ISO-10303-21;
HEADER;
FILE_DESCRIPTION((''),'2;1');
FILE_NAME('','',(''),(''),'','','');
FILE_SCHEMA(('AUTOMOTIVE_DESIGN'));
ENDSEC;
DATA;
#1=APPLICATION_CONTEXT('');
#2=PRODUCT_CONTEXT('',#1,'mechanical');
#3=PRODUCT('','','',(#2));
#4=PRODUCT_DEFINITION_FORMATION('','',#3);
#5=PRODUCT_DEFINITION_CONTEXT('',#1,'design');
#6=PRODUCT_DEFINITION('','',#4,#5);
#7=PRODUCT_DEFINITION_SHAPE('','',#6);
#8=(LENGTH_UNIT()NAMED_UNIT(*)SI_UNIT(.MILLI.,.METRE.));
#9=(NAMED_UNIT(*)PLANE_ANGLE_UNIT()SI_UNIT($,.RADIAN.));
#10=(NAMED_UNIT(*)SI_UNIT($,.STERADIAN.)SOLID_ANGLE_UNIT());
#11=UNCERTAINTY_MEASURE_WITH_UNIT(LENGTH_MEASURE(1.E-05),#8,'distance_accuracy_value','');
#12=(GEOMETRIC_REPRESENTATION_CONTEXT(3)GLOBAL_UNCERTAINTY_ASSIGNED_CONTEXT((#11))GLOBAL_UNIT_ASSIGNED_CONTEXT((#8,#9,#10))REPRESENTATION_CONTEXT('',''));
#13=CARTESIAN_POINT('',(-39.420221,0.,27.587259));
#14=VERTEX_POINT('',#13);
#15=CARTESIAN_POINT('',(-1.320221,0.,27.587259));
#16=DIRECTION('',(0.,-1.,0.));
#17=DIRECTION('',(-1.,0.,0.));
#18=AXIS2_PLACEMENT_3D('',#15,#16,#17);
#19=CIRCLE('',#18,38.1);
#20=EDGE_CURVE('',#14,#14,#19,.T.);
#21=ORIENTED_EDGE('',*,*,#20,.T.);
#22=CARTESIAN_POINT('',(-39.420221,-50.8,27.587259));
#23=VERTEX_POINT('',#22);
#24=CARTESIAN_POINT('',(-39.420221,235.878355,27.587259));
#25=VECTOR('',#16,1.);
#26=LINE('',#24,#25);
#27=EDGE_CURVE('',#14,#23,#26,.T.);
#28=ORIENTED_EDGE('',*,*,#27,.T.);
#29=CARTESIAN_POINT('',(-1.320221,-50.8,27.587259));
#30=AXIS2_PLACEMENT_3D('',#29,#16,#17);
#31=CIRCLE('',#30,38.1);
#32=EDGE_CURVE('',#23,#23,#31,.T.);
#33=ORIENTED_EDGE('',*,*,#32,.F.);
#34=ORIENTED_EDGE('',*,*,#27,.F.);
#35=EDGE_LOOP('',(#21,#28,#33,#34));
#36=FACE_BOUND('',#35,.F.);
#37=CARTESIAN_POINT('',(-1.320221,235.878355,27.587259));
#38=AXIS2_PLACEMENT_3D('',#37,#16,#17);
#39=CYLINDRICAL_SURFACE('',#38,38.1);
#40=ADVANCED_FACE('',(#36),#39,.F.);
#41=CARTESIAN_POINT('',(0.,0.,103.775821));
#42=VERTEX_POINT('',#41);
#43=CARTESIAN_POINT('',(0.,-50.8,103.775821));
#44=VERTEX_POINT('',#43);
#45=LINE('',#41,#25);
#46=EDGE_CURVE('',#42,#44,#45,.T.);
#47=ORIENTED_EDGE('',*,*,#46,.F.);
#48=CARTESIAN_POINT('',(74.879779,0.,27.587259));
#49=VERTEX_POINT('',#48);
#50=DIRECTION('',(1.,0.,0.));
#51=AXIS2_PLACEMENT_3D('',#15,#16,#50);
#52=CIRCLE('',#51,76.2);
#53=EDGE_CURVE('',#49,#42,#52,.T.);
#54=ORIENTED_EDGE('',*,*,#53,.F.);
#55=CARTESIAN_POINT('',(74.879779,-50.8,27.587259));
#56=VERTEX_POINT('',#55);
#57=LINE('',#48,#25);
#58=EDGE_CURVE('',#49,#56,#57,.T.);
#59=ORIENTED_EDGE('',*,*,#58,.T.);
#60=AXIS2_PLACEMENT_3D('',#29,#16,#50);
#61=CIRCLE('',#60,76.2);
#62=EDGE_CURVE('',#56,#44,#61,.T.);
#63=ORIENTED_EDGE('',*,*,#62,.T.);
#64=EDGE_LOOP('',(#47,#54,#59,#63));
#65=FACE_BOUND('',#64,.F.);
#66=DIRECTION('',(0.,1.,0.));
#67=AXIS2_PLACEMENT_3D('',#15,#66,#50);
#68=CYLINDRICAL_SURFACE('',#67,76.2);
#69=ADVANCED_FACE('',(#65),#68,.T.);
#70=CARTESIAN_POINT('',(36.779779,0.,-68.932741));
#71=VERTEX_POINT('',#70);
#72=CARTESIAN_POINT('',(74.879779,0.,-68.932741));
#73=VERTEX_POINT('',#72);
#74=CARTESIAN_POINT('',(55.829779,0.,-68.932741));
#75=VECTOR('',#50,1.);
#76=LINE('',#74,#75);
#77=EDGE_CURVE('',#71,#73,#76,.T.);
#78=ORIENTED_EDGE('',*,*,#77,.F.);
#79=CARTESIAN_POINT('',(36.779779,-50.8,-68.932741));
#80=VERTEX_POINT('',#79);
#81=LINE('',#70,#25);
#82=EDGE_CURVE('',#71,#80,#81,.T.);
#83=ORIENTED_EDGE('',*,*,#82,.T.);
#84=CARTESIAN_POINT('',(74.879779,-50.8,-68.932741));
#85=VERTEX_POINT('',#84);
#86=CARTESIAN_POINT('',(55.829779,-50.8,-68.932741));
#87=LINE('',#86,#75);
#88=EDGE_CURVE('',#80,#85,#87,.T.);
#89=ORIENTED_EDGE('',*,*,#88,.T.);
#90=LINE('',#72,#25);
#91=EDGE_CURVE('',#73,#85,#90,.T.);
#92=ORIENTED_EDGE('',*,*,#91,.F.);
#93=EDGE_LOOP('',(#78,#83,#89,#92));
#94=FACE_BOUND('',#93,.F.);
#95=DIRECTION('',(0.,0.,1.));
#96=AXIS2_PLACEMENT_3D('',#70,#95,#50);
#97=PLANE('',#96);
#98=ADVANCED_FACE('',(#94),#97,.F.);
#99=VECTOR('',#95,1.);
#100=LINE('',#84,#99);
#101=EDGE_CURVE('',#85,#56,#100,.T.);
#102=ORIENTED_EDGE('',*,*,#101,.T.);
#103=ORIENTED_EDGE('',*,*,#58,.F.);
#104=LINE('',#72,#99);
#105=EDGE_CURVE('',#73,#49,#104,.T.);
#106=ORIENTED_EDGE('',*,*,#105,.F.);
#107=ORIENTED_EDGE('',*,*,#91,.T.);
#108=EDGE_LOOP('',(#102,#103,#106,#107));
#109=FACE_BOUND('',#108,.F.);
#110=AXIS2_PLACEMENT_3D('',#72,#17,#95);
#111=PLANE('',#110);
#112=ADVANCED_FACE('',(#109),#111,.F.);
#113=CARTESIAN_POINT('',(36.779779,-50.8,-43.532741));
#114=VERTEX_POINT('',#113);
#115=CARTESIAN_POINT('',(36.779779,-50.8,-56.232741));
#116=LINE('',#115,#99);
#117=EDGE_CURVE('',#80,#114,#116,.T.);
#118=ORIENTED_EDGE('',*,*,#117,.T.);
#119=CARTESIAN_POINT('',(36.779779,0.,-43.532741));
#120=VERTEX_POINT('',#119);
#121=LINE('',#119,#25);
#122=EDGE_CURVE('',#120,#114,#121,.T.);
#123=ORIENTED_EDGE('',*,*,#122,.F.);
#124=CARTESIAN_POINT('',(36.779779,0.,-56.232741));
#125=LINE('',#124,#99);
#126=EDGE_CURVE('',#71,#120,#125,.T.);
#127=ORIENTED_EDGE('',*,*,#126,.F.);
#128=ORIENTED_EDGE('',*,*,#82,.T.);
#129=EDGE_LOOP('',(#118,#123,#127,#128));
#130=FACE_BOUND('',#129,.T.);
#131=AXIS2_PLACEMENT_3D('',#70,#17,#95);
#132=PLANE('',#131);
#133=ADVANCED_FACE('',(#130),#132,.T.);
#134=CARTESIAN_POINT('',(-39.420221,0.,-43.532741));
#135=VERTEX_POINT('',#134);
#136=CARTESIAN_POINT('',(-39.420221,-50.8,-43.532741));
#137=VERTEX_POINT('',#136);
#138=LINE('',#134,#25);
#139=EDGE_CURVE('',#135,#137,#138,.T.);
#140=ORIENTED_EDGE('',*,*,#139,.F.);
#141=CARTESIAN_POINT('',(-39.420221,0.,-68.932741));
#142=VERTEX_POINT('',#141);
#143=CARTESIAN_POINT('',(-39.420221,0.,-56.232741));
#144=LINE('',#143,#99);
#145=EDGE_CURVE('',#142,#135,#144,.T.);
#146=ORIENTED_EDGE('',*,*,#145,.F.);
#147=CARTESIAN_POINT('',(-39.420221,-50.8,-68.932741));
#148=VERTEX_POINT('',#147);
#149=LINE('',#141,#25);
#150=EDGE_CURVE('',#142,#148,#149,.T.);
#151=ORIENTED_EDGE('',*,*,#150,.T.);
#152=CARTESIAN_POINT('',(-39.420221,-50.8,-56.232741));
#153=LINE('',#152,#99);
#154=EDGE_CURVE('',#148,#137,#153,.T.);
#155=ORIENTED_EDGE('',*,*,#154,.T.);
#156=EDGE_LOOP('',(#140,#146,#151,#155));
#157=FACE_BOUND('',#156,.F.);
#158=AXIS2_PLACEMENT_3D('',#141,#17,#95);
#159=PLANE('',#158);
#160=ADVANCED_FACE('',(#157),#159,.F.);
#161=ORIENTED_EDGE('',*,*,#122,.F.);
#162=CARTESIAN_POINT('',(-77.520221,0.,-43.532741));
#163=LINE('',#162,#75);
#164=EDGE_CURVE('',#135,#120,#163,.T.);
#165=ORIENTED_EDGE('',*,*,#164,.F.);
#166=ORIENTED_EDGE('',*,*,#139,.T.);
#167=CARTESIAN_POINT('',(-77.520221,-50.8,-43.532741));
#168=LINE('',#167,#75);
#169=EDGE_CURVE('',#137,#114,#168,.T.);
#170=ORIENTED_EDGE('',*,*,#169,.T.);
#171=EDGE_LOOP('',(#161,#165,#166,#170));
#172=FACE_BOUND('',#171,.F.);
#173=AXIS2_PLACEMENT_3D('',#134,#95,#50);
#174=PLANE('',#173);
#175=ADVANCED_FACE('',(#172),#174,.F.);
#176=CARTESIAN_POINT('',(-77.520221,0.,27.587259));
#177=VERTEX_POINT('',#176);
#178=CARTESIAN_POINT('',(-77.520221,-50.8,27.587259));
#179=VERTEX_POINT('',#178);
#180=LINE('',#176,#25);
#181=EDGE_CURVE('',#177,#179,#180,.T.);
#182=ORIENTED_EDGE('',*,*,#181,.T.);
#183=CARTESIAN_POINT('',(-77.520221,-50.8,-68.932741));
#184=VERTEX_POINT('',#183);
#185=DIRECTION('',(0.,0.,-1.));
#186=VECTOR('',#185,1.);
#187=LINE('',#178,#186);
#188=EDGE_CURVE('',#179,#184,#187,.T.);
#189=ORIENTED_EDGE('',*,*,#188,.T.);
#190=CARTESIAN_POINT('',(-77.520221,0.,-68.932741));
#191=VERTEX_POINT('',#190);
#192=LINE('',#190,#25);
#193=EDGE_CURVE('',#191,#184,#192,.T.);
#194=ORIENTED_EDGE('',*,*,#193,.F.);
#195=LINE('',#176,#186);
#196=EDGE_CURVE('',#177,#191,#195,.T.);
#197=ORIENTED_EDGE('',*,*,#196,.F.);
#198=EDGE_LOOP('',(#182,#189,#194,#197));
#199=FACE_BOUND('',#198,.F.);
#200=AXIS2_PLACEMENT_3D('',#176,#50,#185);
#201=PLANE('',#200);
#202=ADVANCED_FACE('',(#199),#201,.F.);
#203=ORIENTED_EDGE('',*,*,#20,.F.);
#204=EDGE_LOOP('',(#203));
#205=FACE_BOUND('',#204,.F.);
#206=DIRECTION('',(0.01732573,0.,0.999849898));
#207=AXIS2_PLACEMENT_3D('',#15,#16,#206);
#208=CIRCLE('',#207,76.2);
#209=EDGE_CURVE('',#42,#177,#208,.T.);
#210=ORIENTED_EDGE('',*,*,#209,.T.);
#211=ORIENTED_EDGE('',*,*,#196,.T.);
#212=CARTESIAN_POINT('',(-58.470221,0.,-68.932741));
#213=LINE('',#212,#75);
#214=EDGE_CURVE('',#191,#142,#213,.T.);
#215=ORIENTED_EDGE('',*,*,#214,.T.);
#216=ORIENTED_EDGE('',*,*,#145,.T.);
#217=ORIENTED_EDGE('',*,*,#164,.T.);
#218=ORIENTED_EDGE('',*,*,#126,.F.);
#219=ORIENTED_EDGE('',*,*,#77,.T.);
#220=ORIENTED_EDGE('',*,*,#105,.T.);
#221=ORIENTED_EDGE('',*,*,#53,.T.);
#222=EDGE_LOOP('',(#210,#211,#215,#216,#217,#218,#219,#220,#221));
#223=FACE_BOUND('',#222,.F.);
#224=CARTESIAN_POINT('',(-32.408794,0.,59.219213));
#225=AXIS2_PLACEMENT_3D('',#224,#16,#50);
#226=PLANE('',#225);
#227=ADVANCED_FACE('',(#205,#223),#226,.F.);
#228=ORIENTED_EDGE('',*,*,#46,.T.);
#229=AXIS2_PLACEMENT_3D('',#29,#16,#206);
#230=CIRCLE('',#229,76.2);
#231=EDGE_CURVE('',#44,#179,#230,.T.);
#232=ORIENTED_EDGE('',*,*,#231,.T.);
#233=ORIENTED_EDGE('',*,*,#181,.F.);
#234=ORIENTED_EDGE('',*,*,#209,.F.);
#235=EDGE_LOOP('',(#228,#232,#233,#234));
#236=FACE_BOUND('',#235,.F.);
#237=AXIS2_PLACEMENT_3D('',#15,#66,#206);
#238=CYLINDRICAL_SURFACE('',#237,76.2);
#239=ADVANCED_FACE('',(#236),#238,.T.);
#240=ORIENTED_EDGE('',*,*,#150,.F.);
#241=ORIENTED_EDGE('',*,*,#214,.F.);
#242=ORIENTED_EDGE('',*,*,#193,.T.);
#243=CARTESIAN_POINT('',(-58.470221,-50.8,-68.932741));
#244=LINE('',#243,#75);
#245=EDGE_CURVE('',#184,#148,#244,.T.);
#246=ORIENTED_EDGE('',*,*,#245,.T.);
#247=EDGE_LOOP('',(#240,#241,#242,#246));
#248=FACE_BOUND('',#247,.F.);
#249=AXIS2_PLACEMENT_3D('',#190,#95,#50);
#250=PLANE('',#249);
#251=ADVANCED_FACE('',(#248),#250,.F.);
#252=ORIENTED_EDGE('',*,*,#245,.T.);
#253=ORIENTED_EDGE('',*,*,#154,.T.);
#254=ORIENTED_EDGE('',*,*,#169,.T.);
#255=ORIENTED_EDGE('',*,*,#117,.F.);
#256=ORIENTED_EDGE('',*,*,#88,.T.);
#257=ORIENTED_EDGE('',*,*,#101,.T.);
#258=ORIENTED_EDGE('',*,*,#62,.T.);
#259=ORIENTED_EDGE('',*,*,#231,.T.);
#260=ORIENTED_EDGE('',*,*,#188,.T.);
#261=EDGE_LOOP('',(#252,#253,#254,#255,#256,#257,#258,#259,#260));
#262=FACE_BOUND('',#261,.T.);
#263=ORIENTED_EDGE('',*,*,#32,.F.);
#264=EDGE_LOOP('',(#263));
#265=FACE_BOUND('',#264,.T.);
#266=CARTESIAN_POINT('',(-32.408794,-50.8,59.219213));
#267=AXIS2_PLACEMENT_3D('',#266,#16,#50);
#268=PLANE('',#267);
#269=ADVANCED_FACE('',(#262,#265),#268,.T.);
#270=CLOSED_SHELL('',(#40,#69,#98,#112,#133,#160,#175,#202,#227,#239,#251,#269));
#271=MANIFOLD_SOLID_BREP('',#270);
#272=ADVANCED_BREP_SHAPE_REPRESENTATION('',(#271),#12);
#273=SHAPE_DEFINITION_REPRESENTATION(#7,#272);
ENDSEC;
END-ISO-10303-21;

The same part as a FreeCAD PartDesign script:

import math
import FreeCAD as App
import Part
import Sketcher
Q = App.Units.Quantity

doc = App.newDocument("Part")
body = doc.addObject("PartDesign::Body", "Body")

sketch1 = body.newObject("Sketcher::SketchObject", "Sketch")
sketch1.AttachmentSupport = (doc.getObject("XZ_Plane"), [""])
sketch1.MapMode = "FlatFace"
sketch1.addGeometry(Part.ArcOfCircle(Part.Circle(App.Vector(-1, 28, 0), App.Vector(0, 0, 1), 76), math.radians(89), math.radians(180)), False)
sketch1.addGeometry(Part.LineSegment(App.Vector(-78, 28, 0), App.Vector(-78, -69, 0)), False)
sketch1.addGeometry(Part.LineSegment(App.Vector(-78, -69, 0), App.Vector(-39, -69, 0)), False)
sketch1.addGeometry(Part.LineSegment(App.Vector(-39, -69, 0), App.Vector(-39, -44, 0)), False)
sketch1.addGeometry(Part.LineSegment(App.Vector(-39, -44, 0), App.Vector(37, -44, 0)), False)
sketch1.addGeometry(Part.LineSegment(App.Vector(37, -44, 0), App.Vector(37, -69, 0)), False)
sketch1.addGeometry(Part.LineSegment(App.Vector(37, -69, 0), App.Vector(75, -69, 0)), False)
sketch1.addGeometry(Part.LineSegment(App.Vector(75, -69, 0), App.Vector(75, 28, 0)), False)
sketch1.addGeometry(Part.ArcOfCircle(Part.Circle(App.Vector(-1, 28, 0), App.Vector(0, 0, 1), 76), math.radians(0), math.radians(89)), False)
sketch1.addConstraint(Sketcher.Constraint("Tangent", 0, 2, 1, 1))
sketch1.addConstraint(Sketcher.Constraint("Coincident", 1, 2, 2, 1))
sketch1.addConstraint(Sketcher.Constraint("Coincident", 2, 2, 3, 1))
sketch1.addConstraint(Sketcher.Constraint("Coincident", 3, 2, 4, 1))
sketch1.addConstraint(Sketcher.Constraint("Coincident", 4, 2, 5, 1))
sketch1.addConstraint(Sketcher.Constraint("Coincident", 5, 2, 6, 1))
sketch1.addConstraint(Sketcher.Constraint("Coincident", 6, 2, 7, 1))
sketch1.addConstraint(Sketcher.Constraint("Tangent", 7, 2, 8, 1))
sketch1.addConstraint(Sketcher.Constraint("Tangent", 8, 2, 0, 1))
sketch1.addConstraint(Sketcher.Constraint("Vertical", 1))
sketch1.addConstraint(Sketcher.Constraint("Horizontal", 2))
sketch1.addConstraint(Sketcher.Constraint("Vertical", 3))
sketch1.addConstraint(Sketcher.Constraint("Horizontal", 4))
sketch1.addConstraint(Sketcher.Constraint("Vertical", 5))
sketch1.addConstraint(Sketcher.Constraint("Horizontal", 6))
sketch1.addConstraint(Sketcher.Constraint("Vertical", 7))
sketch1.addConstraint(Sketcher.Constraint("Equal", 0, 8))
sketch1.addConstraint(Sketcher.Constraint("PointOnObject", 8, 2, -2))
sketch1.addConstraint(Sketcher.Constraint("Horizontal", 2, 2, 5, 2))
sketch1.addConstraint(Sketcher.Constraint("Equal", 2, 6))
sketch1.addConstraint(Sketcher.Constraint("Radius", 0, Q("3 in")))
sketch1.addConstraint(Sketcher.Constraint("DistanceX", 4, 1, 4, 2, Q("3 in")))
sketch1.addConstraint(Sketcher.Constraint("DistanceY", 3, 1, 3, 2, Q("1 in")))
sketch1.addConstraint(Sketcher.Constraint("DistanceY", 1, 2, 1, 1, Q("3.8 in")))
sketch1.addConstraint(Sketcher.Constraint("DistanceX", 0, 3, -1, 1, 1.320221))
sketch1.addConstraint(Sketcher.Constraint("DistanceY", -1, 1, 0, 3, 27.587259))
pad1 = body.newObject("PartDesign::Pad", "Pad")
pad1.Profile = sketch1
pad1.Length = Q("2 in")

sketch2 = body.newObject("Sketcher::SketchObject", "Sketch001")
sketch2.AttachmentSupport = (doc.getObject("XZ_Plane"), [""])
sketch2.MapMode = "FlatFace"
sketch2.addGeometry(Part.Circle(App.Vector(-1, 28, 0), App.Vector(0, 0, 1), 38), False)
sketch2.addConstraint(Sketcher.Constraint("Diameter", 0, Q("3 in")))
sketch2.addConstraint(Sketcher.Constraint("DistanceX", 0, 3, -1, 1, 1.320221))
sketch2.addConstraint(Sketcher.Constraint("DistanceY", -1, 1, 0, 3, 27.587259))
doc.recompute()
hole = body.newObject("PartDesign::Hole", "Hole")
hole.Profile = sketch2
hole.ThreadType = "None"
hole.Diameter = Q("3 in")
hole.DepthType = "ThroughAll"
hole.Reversed = True

doc.recompute()
